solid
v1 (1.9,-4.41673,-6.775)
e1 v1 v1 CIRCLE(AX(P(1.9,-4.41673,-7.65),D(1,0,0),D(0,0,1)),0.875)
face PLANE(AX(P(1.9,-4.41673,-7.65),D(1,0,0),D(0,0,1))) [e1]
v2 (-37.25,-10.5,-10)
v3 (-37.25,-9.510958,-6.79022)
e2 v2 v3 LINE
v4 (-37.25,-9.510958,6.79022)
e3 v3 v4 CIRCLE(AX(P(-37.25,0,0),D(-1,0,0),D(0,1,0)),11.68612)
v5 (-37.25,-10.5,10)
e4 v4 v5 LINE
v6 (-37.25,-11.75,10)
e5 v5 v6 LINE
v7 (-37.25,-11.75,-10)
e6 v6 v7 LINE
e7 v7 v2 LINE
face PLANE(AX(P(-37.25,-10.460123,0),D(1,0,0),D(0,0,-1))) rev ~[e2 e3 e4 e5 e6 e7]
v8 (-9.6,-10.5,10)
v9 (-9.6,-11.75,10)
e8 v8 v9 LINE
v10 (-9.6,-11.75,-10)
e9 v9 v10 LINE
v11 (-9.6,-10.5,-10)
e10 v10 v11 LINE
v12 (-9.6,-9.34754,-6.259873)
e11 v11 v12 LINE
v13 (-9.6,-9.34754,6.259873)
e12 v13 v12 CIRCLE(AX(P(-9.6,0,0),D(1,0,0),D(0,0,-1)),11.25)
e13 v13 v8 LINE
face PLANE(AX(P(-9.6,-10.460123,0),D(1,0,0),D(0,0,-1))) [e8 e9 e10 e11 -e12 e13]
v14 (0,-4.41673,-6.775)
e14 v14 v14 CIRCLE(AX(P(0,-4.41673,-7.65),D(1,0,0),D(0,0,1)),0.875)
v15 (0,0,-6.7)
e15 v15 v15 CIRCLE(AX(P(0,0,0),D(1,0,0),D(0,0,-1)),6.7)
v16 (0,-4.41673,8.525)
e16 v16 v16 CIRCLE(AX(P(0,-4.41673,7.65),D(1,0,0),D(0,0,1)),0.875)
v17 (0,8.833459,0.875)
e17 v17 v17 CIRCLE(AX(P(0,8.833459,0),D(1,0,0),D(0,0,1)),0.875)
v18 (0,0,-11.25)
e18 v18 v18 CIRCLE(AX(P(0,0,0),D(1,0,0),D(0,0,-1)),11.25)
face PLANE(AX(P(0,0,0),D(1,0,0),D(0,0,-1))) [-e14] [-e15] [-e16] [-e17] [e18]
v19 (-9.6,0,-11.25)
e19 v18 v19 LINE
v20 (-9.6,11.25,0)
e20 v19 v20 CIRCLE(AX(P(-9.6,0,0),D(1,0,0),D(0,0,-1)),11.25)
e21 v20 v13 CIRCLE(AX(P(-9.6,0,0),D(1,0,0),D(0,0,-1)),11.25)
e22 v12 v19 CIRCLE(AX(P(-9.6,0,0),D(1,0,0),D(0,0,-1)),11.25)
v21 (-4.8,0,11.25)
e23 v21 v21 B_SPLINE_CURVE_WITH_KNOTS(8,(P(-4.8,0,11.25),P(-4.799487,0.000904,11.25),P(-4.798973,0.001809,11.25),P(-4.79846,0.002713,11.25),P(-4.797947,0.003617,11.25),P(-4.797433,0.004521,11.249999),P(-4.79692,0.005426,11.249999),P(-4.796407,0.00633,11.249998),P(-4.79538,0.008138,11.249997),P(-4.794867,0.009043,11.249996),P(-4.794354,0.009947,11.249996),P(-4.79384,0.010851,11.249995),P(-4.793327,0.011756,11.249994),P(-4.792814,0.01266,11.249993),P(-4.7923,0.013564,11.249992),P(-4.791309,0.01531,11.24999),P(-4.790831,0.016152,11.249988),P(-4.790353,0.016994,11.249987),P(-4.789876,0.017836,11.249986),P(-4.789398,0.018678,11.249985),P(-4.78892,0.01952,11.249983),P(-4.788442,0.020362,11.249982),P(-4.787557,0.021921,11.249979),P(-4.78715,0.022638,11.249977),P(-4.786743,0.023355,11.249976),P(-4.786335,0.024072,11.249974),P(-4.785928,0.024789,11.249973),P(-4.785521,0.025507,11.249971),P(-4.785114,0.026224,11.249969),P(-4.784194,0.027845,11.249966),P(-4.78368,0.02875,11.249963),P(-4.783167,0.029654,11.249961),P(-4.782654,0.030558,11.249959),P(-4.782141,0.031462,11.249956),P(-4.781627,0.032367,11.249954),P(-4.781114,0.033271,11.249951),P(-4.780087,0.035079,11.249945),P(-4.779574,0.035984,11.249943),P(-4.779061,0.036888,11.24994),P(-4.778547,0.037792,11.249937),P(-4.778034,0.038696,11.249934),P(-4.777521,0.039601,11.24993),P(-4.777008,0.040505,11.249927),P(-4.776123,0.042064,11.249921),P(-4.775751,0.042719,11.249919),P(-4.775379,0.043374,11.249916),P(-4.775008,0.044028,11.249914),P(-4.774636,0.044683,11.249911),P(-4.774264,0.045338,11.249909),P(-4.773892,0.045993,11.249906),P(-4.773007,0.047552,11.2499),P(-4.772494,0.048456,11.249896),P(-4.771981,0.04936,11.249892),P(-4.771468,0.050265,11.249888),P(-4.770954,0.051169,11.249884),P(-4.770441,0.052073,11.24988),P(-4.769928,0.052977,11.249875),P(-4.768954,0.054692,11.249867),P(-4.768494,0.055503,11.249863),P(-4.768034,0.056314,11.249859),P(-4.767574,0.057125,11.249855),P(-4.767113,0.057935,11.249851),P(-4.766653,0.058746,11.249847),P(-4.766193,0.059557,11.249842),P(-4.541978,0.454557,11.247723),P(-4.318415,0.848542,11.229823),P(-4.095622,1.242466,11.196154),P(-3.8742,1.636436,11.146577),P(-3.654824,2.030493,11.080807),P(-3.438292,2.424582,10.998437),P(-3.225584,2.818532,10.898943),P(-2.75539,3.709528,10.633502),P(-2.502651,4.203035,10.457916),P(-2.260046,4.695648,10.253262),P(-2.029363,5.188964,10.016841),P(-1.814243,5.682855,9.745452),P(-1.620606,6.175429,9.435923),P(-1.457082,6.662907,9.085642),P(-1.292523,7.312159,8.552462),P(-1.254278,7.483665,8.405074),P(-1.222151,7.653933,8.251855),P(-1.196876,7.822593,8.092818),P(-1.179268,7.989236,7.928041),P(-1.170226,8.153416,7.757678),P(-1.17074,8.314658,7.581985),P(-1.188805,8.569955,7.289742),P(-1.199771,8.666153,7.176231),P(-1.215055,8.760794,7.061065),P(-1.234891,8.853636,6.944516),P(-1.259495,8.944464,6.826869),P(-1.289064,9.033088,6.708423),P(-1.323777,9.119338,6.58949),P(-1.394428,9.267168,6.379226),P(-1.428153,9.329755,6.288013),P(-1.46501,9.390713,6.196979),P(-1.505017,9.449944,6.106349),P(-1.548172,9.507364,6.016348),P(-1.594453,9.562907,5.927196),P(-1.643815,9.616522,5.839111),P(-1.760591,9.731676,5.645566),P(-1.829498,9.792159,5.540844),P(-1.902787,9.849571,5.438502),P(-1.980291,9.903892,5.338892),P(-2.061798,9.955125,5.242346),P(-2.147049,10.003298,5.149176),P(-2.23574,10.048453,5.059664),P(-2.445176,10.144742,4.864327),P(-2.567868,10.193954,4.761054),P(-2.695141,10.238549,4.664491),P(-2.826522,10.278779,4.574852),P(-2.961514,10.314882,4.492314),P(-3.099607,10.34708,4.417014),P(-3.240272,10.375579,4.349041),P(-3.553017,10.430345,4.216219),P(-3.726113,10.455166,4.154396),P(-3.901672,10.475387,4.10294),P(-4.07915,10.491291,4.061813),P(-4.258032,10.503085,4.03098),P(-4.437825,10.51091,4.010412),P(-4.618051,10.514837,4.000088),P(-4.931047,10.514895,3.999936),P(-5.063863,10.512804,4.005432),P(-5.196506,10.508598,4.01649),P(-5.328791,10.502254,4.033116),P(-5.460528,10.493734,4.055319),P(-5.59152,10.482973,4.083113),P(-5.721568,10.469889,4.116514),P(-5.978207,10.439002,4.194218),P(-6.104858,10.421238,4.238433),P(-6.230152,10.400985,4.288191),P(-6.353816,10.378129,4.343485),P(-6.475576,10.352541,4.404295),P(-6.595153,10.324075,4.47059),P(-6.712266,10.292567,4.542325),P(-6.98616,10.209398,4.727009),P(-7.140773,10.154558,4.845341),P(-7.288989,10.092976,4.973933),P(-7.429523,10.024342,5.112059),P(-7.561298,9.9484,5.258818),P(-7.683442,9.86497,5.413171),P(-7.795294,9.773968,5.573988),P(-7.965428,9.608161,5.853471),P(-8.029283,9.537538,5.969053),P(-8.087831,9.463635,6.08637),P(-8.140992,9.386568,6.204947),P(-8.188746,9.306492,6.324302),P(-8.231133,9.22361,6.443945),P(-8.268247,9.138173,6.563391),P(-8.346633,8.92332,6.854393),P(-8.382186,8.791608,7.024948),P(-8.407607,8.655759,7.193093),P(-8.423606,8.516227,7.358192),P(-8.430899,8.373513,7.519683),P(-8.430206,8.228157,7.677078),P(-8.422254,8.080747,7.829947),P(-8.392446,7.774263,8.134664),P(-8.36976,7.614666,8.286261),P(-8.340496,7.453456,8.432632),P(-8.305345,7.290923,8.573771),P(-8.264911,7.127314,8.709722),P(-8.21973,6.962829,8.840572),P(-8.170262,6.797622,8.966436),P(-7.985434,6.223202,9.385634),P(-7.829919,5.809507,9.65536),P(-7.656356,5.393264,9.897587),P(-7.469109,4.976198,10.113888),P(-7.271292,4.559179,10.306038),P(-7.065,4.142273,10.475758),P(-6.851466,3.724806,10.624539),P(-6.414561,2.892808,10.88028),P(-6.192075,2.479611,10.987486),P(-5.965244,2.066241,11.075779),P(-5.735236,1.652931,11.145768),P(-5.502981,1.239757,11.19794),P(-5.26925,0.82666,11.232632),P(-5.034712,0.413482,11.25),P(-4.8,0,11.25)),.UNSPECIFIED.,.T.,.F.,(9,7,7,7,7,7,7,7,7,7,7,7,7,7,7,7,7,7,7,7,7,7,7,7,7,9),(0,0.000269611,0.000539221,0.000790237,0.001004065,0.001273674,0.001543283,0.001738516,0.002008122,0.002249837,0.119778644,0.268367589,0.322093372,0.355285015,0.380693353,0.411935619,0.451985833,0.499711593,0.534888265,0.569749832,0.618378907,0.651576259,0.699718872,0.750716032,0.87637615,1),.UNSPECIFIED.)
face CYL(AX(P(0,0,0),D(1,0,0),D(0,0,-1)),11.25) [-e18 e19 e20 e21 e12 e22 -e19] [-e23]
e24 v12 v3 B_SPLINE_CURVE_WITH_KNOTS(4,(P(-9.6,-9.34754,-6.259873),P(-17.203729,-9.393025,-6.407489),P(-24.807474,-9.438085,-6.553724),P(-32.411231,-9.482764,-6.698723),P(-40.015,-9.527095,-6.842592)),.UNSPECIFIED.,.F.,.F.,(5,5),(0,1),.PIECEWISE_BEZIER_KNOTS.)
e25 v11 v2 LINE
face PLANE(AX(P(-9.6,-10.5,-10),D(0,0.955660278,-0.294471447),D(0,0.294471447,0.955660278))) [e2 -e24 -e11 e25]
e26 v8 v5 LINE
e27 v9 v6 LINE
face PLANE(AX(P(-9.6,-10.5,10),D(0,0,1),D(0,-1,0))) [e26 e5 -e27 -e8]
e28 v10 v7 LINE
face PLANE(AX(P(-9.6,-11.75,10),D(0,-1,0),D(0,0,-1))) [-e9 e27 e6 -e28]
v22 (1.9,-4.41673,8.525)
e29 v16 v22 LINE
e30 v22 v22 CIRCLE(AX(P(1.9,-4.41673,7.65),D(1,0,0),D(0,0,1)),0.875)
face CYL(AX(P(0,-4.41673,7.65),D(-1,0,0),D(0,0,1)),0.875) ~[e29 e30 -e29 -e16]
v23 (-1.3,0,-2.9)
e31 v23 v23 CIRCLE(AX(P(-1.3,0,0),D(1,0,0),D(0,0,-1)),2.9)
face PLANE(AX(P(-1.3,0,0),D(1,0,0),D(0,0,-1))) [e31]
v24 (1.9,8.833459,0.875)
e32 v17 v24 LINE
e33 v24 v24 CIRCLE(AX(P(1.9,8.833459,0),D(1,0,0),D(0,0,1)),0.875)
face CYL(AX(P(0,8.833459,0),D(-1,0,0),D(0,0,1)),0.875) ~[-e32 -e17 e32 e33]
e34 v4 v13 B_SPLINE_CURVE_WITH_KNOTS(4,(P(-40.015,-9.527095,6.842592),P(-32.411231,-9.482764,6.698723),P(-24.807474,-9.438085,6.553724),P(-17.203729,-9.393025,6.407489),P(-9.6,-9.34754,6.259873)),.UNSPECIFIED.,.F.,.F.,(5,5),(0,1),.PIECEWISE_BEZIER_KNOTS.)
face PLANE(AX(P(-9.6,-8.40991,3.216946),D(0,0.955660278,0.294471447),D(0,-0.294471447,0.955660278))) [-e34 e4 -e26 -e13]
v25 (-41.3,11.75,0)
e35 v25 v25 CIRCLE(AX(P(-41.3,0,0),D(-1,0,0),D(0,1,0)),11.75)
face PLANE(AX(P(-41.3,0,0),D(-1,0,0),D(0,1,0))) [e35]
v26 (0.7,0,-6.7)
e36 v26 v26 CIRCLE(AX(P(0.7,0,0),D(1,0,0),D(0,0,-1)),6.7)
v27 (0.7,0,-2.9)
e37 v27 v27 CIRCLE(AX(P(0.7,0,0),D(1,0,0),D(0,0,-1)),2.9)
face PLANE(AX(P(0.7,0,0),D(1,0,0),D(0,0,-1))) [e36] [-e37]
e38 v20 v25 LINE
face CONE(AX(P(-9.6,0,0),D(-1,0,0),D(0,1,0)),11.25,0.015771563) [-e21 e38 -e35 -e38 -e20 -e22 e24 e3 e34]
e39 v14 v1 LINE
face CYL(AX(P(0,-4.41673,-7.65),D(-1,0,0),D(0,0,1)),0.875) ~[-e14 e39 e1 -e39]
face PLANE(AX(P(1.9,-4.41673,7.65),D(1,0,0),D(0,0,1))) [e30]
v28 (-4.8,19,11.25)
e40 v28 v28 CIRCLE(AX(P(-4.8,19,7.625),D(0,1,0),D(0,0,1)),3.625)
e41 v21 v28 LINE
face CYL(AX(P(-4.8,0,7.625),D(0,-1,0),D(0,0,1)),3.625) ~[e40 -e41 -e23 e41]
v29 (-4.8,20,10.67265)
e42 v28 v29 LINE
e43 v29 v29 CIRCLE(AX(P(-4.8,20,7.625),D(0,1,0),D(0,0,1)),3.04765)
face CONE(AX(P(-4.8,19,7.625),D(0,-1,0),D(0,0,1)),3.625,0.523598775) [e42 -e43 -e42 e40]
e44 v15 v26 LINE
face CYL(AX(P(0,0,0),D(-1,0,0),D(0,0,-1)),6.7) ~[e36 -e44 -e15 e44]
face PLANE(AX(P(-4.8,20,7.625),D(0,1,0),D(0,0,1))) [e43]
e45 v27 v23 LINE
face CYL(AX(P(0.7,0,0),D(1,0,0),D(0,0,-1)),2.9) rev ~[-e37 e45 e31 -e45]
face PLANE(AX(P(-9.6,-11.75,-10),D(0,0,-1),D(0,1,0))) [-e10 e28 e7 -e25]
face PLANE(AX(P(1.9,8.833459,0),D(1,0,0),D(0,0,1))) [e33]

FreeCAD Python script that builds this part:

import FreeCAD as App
import Part
import Sketcher
from FreeCAD import Vector
Q = App.Units.Quantity


def edges_at(feature, points):
    """Names of the edges that pass closest to the given points."""
    edges = feature.Shape.Edges
    near = lambda p: min(range(len(edges)), key=lambda i: edges[i].distToShape(Part.Vertex(*p))[0])
    return sorted({f"Edge{near(p) + 1}" for p in points})

doc = App.newDocument("Part")
body = doc.addObject("PartDesign::Body", "Body")

sketch1 = body.newObject("Sketcher::SketchObject", "Sketch")
sketch1.AttachmentSupport = (doc.getObject("YZ_Plane"), [""])
sketch1.MapMode = "FlatFace"
sketch1.addGeometry(Part.Circle(Vector(0, 0, 0), Vector(0, 0, 1), 11.25), False)
sketch1.addConstraint([
    Sketcher.Constraint("Coincident", 0, 3, -1, 1),
    Sketcher.Constraint("Diameter", 0, Q("22.5 mm")),
])
pad1 = body.newObject("PartDesign::Pad", "Pad")
pad1.Profile = sketch1
pad1.Length = 9.6
pad1.Reversed = True

sketch2 = body.newObject("Sketcher::SketchObject", "Sketch001")
sketch2.AttachmentSupport = (doc.getObject("XZ_Plane"), [""])
sketch2.MapMode = "FlatFace"
sketch2.addGeometry(Part.Circle(Vector(-4.8, 7.625, 0), Vector(0, 0, 1), 3.625), False)
sketch2.addConstraint([
    Sketcher.Constraint("Diameter", 0, Q("7.25 mm")),
    Sketcher.Constraint("DistanceX", 0, 3, -1, 1, Q("4.8 mm")),
    Sketcher.Constraint("DistanceY", -1, 1, 0, 3, Q("7.625 mm")),
])
pad2 = body.newObject("PartDesign::Pad", "Pad001")
pad2.Profile = sketch2
pad2.Length = 20
pad2.Reversed = True

sketch3 = body.newObject("Sketcher::SketchObject", "Sketch002")
sketch3.AttachmentSupport = (doc.getObject("YZ_Plane"), [""])
sketch3.MapMode = "FlatFace"
sketch3.addGeometry(Part.Circle(Vector(0, 0, 0), Vector(0, 0, 1), 6.7), False)
sketch3.addConstraint([
    Sketcher.Constraint("Coincident", 0, 3, -1, 1),
    Sketcher.Constraint("Diameter", 0, Q("13.4 mm")),
])
pad3 = body.newObject("PartDesign::Pad", "Pad002")
pad3.Profile = sketch3
pad3.Length = 0.7

sketch4 = body.newObject("Sketcher::SketchObject", "Sketch003")
sketch4.AttachmentSupport = (doc.getObject("YZ_Plane"), [""])
sketch4.MapMode = "FlatFace"
sketch4.addGeometry([
    Part.Circle(Vector(8.833459, 0, 0), Vector(0, 0, 1), 0.875),
    Part.Circle(Vector(-4.41673, -7.65, 0), Vector(0, 0, 1), 0.875),
    Part.Circle(Vector(-4.41673, 7.65, 0), Vector(0, 0, 1), 0.875),
], False)
sketch4.addConstraint([
    Sketcher.Constraint("Equal", 0, 1),
    Sketcher.Constraint("Equal", 1, 2),
    Sketcher.Constraint("Symmetric", 1, 3, 2, 3, -1),
    Sketcher.Constraint("PointOnObject", 0, 3, -1),
    Sketcher.Constraint("Diameter", 0, Q("1.75 mm")),
    Sketcher.Constraint("DistanceY", 1, 3, 2, 3, Q("15.3 mm")),
    Sketcher.Constraint("DistanceX", -1, 1, 0, 3, Q("8.833459 mm")),
    Sketcher.Constraint("DistanceX", 1, 3, -1, 1, Q("4.41673 mm")),
])
pad4 = body.newObject("PartDesign::Pad", "Pad003")
pad4.Profile = sketch4
pad4.Length = 1.9

sketch5 = body.newObject("Sketcher::SketchObject", "Sketch004")
sketch5.AttachmentSupport = (doc.getObject("YZ_Plane"), [""])
sketch5.MapMode = "FlatFace"
sketch5.AttachmentOffset = App.Placement(Vector(0, 0, 0.7), App.Rotation())
sketch5.addGeometry(Part.Circle(Vector(0, 0, 0), Vector(0, 0, 1), 2.9), False)
sketch5.addConstraint([
    Sketcher.Constraint("Coincident", 0, 3, -1, 1),
    Sketcher.Constraint("Diameter", 0, Q("5.8 mm")),
])
pocket1 = body.newObject("PartDesign::Pocket", "Pocket")
pocket1.Profile = sketch5
pocket1.Length = 2

sketch6 = body.newObject("Sketcher::SketchObject", "Sketch005")
sketch6.AttachmentSupport = (doc.getObject("XY_Plane"), [""])
sketch6.MapMode = "FlatFace"
sketch6.addGeometry([
    Part.LineSegment(Vector(-9.6, 0, 0), Vector(-9.6, 11.25, 0)),
    Part.LineSegment(Vector(-9.6, 11.25, 0), Vector(-41.3, 11.75, 0)),
    Part.LineSegment(Vector(-41.3, 11.75, 0), Vector(-41.3, 0, 0)),
    Part.LineSegment(Vector(-41.3, 0, 0), Vector(-9.6, 0, 0)),
], False)
sketch6.addConstraint([
    Sketcher.Constraint("Coincident", 0, 2, 1, 1),
    Sketcher.Constraint("Coincident", 1, 2, 2, 1),
    Sketcher.Constraint("Coincident", 2, 2, 3, 1),
    Sketcher.Constraint("Coincident", 3, 2, 0, 1),
    Sketcher.Constraint("Vertical", 0),
    Sketcher.Constraint("Vertical", 2),
    Sketcher.Constraint("Horizontal", 3),
    Sketcher.Constraint("PointOnObject", 2, 2, -1),
    Sketcher.Constraint("DistanceX", 3, 1, 3, 2, Q("31.7 mm")),
    Sketcher.Constraint("DistanceY", 0, 1, 0, 2, Q("11.25 mm")),
    Sketcher.Constraint("DistanceY", 2, 2, 2, 1, Q("11.75 mm")),
    Sketcher.Constraint("DistanceX", 0, 2, -1, 1, Q("9.6 mm")),
])
revolution = body.newObject("PartDesign::Revolution", "Revolution")
revolution.Profile = sketch6
revolution.ReferenceAxis = (sketch6, ["H_Axis"])
revolution.Angle = 360

sketch7 = body.newObject("Sketcher::SketchObject", "Sketch006")
sketch7.AttachmentSupport = (doc.getObject("YZ_Plane"), [""])
sketch7.MapMode = "FlatFace"
sketch7.AttachmentOffset = App.Placement(Vector(0, 0, -9.6), App.Rotation())
sketch7.addGeometry([
    Part.LineSegment(Vector(-11.75, 10, 0), Vector(-11.75, -10, 0)),
    Part.LineSegment(Vector(-11.75, -10, 0), Vector(-10.5, -10, 0)),
    Part.LineSegment(Vector(-10.5, -10, 0), Vector(-8.40991, -3.216946, 0)),
    Part.LineSegment(Vector(-8.40991, -3.216946, 0), Vector(-8.40991, 3.216946, 0)),
    Part.LineSegment(Vector(-8.40991, 3.216946, 0), Vector(-10.5, 10, 0)),
    Part.LineSegment(Vector(-10.5, 10, 0), Vector(-11.75, 10, 0)),
], False)
sketch7.addConstraint([
    Sketcher.Constraint("Coincident", 0, 2, 1, 1),
    Sketcher.Constraint("Coincident", 1, 2, 2, 1),
    Sketcher.Constraint("Coincident", 2, 2, 3, 1),
    Sketcher.Constraint("Coincident", 3, 2, 4, 1),
    Sketcher.Constraint("Coincident", 4, 2, 5, 1),
    Sketcher.Constraint("Coincident", 5, 2, 0, 1),
    Sketcher.Constraint("Vertical", 0),
    Sketcher.Constraint("Horizontal", 1),
    Sketcher.Constraint("Vertical", 3),
    Sketcher.Constraint("Horizontal", 5),
    Sketcher.Constraint("Symmetric", 1, 2, 4, 2, -1),
    Sketcher.Constraint("Equal", 2, 4),
    Sketcher.Constraint("DistanceY", 0, 2, 0, 1, Q("20 mm")),
    Sketcher.Constraint("DistanceX", 1, 1, 1, 2, Q("1.25 mm")),
    Sketcher.Constraint("DistanceX", 1, 2, -1, 1, Q("10.5 mm")),
    Sketcher.Constraint("DistanceY", 3, 1, 3, 2, Q("6.433893 mm")),
    Sketcher.Constraint("DistanceX", 2, 2, -1, 1, Q("8.40991 mm")),
])
pad5 = body.newObject("PartDesign::Pad", "Pad004")
pad5.Profile = sketch7
pad5.Length = 27.65
pad5.Reversed = True
doc.recompute()

chamfer = body.newObject("PartDesign::Chamfer", "Chamfer")
chamfer.Base = (pad5, edges_at(pad5, [(-4.8, 20, 4)]))
chamfer.ChamferType = "Two distances"
chamfer.Size = 1
chamfer.Size2 = 0.57735

doc.recompute()
